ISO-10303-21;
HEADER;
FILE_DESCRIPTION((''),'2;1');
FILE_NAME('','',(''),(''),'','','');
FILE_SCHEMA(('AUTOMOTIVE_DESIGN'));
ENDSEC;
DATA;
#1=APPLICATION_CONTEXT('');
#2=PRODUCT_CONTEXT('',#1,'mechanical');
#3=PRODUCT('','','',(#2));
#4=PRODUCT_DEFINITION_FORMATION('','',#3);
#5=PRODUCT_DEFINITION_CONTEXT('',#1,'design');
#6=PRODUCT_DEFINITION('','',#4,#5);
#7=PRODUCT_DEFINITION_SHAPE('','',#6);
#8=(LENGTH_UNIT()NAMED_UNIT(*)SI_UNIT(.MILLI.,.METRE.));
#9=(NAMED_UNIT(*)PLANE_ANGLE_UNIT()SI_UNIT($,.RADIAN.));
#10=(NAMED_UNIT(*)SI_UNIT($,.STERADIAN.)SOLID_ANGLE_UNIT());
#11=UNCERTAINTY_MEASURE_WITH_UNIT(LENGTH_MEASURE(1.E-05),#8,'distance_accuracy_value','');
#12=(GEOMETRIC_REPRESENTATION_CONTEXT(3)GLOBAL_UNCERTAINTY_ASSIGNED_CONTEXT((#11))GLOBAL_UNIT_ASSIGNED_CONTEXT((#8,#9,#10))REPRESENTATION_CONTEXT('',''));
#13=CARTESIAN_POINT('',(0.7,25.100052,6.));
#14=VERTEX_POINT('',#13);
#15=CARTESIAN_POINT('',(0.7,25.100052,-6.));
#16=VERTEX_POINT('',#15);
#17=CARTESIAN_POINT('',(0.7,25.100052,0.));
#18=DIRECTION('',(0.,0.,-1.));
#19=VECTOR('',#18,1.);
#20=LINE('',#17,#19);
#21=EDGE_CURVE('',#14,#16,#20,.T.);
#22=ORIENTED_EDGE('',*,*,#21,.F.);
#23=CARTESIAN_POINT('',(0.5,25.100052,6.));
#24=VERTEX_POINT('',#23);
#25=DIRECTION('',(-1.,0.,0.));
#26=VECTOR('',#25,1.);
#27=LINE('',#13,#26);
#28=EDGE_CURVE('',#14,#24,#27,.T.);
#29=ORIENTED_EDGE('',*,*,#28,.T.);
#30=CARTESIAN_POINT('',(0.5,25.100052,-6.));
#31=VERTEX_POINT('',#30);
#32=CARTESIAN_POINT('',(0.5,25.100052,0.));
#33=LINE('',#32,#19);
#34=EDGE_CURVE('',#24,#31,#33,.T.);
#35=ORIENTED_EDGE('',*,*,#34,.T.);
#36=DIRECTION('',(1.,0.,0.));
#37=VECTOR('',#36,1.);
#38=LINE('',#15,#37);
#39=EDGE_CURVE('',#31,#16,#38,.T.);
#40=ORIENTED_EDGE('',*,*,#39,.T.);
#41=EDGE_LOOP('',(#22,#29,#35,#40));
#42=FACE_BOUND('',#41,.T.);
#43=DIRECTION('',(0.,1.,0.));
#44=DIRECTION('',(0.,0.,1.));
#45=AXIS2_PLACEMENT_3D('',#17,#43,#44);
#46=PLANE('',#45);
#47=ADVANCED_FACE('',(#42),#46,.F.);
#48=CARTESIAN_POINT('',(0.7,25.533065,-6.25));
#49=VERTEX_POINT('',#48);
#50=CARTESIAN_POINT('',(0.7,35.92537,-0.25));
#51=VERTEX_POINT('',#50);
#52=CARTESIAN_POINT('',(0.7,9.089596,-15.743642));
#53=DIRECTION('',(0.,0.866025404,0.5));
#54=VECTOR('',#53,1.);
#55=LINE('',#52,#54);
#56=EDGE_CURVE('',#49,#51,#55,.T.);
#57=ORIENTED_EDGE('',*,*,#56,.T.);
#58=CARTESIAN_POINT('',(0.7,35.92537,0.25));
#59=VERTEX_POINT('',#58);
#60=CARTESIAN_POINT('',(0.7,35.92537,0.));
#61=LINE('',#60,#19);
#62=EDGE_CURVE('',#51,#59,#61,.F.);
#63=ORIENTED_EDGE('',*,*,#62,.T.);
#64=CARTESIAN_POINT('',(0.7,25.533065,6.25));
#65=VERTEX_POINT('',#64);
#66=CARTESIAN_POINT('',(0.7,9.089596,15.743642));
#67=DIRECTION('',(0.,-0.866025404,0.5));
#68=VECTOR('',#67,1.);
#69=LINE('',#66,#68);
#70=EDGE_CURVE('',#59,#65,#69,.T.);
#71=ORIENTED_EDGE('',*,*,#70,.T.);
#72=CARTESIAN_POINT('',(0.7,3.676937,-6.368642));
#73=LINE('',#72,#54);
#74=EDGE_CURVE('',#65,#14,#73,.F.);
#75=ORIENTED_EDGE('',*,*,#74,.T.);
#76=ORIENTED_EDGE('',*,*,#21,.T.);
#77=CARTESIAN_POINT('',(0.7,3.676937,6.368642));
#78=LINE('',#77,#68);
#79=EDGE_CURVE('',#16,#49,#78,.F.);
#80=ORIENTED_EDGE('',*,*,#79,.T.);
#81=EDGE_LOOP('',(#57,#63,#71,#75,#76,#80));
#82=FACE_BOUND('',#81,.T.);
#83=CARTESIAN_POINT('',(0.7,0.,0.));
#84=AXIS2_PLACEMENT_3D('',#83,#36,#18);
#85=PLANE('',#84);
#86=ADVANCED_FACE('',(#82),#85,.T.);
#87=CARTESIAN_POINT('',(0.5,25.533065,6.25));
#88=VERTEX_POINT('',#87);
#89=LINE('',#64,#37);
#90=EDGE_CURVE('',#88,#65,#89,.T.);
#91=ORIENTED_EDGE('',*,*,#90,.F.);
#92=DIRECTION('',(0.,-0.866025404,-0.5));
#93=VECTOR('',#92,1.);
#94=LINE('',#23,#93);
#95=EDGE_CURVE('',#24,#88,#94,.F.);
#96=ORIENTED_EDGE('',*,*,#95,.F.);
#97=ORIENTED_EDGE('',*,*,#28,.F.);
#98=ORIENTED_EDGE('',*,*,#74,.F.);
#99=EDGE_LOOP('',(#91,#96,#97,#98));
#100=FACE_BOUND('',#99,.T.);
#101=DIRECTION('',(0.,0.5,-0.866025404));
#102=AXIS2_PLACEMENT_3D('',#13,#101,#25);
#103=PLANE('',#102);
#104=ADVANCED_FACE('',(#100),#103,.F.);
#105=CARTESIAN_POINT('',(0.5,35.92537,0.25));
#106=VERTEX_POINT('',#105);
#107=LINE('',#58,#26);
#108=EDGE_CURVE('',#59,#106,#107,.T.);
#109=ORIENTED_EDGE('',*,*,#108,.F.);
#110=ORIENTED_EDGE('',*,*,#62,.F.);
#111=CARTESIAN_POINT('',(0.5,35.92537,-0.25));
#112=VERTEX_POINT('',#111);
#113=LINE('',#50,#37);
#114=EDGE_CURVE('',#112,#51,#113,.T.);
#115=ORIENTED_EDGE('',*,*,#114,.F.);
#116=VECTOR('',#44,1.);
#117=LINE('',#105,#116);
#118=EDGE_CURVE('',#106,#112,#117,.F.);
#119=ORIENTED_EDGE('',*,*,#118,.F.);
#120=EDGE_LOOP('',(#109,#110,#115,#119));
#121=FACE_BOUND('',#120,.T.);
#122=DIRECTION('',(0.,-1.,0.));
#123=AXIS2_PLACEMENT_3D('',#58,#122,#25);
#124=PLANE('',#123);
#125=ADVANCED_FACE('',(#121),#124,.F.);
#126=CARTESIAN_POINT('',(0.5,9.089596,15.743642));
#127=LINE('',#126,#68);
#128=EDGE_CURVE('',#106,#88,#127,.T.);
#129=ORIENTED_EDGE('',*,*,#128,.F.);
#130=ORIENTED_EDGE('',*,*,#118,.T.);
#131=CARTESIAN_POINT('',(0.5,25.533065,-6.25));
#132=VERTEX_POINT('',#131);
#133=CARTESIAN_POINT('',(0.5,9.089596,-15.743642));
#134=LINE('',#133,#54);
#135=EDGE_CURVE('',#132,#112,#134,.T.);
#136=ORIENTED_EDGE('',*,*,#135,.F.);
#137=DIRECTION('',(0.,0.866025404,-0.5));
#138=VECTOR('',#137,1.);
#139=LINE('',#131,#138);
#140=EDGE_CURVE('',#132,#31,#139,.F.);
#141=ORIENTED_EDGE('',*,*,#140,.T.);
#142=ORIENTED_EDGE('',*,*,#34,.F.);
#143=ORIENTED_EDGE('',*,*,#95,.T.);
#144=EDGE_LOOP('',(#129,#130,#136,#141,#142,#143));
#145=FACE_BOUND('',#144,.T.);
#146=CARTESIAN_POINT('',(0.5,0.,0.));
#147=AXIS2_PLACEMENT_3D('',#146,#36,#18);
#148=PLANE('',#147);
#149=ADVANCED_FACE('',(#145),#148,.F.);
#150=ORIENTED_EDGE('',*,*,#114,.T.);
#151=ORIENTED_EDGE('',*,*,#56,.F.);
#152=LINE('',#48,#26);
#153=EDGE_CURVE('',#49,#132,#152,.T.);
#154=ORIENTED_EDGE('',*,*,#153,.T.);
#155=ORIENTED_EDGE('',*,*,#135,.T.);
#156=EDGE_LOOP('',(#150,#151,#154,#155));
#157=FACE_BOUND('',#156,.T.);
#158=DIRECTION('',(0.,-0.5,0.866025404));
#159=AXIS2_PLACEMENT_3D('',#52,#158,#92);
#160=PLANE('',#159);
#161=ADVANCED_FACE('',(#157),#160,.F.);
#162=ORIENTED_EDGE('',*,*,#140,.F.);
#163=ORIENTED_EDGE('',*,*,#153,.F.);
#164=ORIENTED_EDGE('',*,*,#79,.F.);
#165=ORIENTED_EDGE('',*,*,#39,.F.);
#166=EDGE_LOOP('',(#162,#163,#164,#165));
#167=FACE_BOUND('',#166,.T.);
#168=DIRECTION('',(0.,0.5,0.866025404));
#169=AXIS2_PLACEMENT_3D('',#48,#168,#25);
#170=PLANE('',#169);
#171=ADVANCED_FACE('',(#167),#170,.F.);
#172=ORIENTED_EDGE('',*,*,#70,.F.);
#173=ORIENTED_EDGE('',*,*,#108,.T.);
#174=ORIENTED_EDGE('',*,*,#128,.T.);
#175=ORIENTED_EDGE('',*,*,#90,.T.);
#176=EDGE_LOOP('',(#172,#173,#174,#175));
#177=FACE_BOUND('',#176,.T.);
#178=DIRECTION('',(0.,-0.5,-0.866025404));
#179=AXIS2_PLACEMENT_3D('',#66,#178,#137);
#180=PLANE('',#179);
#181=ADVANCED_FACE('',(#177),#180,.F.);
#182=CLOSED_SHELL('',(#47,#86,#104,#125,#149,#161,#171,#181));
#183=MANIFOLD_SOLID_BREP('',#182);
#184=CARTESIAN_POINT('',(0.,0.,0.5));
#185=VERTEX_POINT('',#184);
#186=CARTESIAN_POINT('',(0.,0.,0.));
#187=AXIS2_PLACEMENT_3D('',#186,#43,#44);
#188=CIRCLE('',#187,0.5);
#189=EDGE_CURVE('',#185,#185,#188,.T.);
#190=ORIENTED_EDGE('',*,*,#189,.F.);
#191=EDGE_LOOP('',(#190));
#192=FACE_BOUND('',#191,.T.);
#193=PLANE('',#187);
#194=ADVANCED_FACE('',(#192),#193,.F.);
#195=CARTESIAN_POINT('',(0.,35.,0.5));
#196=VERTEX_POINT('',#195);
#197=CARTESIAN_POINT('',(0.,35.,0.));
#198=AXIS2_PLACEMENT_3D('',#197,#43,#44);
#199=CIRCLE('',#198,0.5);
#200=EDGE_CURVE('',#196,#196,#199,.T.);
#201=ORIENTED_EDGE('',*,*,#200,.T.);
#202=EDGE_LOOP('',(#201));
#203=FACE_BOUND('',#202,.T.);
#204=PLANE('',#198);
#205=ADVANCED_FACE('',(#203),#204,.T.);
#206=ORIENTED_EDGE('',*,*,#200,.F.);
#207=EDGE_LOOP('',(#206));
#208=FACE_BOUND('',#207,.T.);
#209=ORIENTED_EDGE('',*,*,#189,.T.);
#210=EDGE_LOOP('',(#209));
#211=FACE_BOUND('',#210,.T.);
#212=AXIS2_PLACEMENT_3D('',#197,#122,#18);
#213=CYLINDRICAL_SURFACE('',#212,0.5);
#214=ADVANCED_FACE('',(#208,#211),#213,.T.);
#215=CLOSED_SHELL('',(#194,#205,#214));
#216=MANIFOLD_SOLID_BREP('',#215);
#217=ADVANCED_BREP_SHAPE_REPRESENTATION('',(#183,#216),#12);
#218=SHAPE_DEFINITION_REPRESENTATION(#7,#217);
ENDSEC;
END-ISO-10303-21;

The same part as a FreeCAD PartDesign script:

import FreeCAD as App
import Part
import Sketcher
from FreeCAD import Vector
Q = App.Units.Quantity


def edges_at(feature, points):
    """Names of the edges that pass closest to the given points."""
    edges = feature.Shape.Edges
    near = lambda p: min(range(len(edges)), key=lambda i: edges[i].distToShape(Part.Vertex(*p))[0])
    return sorted({f"Edge{near(p) + 1}" for p in points})


def add_polygon(sketch, points):
    """Adds a closed chain of lines whose ends are joined by coincident constraints."""
    first, n = sketch.GeometryCount, len(points)
    for a, b in zip(points, points[1:] + points[:1]):
        sketch.addGeometry(Part.LineSegment(App.Vector(*a, 0), App.Vector(*b, 0)), False)
    for i in range(n):
        sketch.addConstraint(Sketcher.Constraint("Coincident", first + i, 2, first + (i + 1) % n, 1))

doc = App.newDocument("Part")
body = doc.addObject("PartDesign::Body", "Body")

# Sketch on XZ plane
sketch1 = body.newObject("Sketcher::SketchObject", "Sketch")
sketch1.AttachmentSupport = (doc.getObject("XZ_Plane"), [""])
sketch1.MapMode = "FlatFace"
sketch1.addGeometry(Part.Circle(Vector(0, 0, 0), Vector(0, 0, 1), 0.5), False)
sketch1.addConstraint([
    Sketcher.Constraint("Coincident", 0, 3, -1, 1),
    Sketcher.Constraint("Diameter", 0, 1.0),
])
pad1 = body.newObject("PartDesign::Pad", "Pad")
pad1.Profile = sketch1
pad1.Length = 35
pad1.Reversed = True
body2 = doc.addObject("PartDesign::Body", "Body001")

# Sketch on YZ plane
sketch2 = body2.newObject("Sketcher::SketchObject", "Sketch001")
sketch2.AttachmentSupport = (doc.getObject("YZ_Plane001"), [""])
sketch2.MapMode = "FlatFace"
sketch2.AttachmentOffset = App.Placement(Vector(0, 0, 0.5), App.Rotation())
add_polygon(sketch2, [(25, -6), (36, 0), (25, 6)])  # lines 0-2
sketch2.addConstraint([
    Sketcher.Constraint("Vertical", 2),
    Sketcher.Constraint("PointOnObject", 0, 2, -1),
    Sketcher.Constraint("Equal", 0, 1),
    Sketcher.Constraint("DistanceY", 2, 2, 2, 1, 13.0),
    Sketcher.Constraint("Angle", 0, Q("30 deg")),
    Sketcher.Constraint("DistanceX", -1, 1, 0, 2, 36.358383),
])
pad2 = body2.newObject("PartDesign::Pad", "Pad001")
pad2.Profile = sketch2
pad2.Length = 0.2
doc.recompute()

chamfer = body2.newObject("PartDesign::Chamfer", "Chamfer")
chamfer.Base = (pad2, edges_at(pad2, [(0.6, 25.1, -6.5)]))
chamfer.Size = 0.5
doc.recompute()

chamfer2 = body2.newObject("PartDesign::Chamfer", "Chamfer001")
chamfer2.Base = (chamfer, edges_at(chamfer, [(0.6, 25.1, 6.5)]))
chamfer2.Size = 0.5
doc.recompute()

chamfer3 = body2.newObject("PartDesign::Chamfer", "Chamfer002")
chamfer3.Base = (chamfer2, edges_at(chamfer2, [(0.6, 36.358, 0)]))
chamfer3.Size = 0.5

doc.recompute()
